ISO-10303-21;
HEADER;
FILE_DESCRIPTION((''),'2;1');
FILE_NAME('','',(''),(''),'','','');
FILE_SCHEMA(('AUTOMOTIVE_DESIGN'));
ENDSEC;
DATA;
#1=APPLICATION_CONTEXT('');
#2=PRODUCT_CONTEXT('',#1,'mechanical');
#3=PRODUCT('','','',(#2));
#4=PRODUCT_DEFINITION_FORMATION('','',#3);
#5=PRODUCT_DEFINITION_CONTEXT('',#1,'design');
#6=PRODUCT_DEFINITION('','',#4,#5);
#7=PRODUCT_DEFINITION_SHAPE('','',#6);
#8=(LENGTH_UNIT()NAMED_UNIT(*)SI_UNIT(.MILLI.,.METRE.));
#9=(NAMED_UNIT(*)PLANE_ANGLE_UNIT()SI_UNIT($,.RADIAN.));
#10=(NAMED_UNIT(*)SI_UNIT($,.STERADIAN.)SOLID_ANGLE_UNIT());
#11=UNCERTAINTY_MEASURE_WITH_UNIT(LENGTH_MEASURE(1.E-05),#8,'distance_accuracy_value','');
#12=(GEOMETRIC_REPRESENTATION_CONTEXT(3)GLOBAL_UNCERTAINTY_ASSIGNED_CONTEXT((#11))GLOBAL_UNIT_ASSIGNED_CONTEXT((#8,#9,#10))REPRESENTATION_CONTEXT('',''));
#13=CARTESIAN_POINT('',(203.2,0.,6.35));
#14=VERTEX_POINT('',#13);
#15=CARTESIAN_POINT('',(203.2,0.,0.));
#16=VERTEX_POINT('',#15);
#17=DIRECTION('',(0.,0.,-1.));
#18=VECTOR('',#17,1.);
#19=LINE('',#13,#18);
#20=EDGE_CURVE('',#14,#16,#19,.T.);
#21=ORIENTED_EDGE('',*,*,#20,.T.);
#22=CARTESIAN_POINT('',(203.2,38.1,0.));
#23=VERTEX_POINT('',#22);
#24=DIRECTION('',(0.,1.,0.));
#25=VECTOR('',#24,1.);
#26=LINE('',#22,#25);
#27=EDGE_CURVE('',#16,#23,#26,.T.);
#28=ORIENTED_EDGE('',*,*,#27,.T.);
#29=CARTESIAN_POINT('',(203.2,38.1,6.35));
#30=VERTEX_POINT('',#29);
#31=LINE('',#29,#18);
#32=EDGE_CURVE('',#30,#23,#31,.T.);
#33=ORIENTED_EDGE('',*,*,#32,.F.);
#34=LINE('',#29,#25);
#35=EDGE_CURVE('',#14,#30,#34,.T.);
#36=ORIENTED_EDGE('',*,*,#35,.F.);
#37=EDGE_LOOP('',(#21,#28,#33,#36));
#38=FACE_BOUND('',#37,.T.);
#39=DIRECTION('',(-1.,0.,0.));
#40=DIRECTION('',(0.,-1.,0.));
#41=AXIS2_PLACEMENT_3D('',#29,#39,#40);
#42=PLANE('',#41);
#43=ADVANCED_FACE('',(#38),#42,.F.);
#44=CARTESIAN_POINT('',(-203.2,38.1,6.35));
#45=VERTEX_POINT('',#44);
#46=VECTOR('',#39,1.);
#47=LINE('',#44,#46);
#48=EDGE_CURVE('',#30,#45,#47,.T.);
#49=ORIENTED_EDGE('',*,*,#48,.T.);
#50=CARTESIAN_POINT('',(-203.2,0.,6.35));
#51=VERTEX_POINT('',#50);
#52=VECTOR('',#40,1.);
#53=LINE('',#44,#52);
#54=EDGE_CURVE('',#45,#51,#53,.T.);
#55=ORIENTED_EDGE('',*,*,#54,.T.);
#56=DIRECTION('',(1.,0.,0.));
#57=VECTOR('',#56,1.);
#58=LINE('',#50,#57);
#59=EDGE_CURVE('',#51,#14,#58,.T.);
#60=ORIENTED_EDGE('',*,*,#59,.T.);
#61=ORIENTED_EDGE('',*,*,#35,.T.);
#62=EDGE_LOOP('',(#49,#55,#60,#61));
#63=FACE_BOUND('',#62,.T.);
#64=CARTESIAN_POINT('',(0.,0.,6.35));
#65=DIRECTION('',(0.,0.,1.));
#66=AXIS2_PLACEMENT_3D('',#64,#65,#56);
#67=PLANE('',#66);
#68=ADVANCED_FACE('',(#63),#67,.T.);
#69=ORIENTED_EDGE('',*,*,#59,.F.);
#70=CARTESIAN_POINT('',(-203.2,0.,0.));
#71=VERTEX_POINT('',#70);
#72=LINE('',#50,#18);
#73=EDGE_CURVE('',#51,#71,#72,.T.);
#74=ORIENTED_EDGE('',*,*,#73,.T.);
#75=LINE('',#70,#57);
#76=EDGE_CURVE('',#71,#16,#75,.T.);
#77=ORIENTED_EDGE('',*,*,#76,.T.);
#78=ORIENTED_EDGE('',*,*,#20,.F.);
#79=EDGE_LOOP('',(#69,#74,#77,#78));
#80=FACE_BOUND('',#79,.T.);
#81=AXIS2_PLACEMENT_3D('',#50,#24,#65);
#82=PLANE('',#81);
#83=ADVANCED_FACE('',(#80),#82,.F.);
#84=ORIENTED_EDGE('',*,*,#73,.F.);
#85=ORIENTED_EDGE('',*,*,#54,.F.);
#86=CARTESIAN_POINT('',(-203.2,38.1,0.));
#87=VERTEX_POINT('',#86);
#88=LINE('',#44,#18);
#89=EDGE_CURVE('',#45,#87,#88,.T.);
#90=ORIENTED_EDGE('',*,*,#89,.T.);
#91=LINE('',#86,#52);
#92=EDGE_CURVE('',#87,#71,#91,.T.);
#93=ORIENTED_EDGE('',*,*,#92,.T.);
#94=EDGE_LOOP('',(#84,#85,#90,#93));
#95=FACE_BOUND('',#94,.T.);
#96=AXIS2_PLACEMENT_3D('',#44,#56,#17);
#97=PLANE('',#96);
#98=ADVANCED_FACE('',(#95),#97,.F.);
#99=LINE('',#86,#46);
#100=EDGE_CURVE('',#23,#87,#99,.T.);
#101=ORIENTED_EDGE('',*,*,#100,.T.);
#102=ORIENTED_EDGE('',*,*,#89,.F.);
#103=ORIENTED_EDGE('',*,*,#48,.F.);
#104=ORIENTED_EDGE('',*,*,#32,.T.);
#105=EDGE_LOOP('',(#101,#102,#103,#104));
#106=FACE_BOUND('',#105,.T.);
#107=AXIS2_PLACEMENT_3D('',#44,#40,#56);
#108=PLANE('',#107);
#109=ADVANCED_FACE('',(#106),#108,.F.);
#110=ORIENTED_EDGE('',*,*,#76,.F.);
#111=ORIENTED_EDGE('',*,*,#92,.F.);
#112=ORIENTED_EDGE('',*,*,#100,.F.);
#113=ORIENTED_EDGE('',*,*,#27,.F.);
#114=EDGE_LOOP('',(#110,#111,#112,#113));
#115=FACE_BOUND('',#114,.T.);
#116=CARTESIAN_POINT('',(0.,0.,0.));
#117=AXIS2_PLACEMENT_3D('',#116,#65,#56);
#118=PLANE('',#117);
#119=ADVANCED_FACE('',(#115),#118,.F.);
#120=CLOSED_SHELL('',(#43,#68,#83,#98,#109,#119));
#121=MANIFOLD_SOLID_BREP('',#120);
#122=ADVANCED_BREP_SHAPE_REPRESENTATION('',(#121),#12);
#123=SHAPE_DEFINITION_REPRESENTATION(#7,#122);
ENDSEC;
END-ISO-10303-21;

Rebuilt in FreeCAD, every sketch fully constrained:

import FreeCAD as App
import Part
import Sketcher
from FreeCAD import Vector
Q = App.Units.Quantity


def add_polygon(sketch, points):
    """Adds a closed chain of lines whose ends are joined by coincident constraints."""
    first, n = sketch.GeometryCount, len(points)
    for a, b in zip(points, points[1:] + points[:1]):
        sketch.addGeometry(Part.LineSegment(App.Vector(*a, 0), App.Vector(*b, 0)), False)
    for i in range(n):
        sketch.addConstraint(Sketcher.Constraint("Coincident", first + i, 2, first + (i + 1) % n, 1))

doc = App.newDocument("Part")
body = doc.addObject("PartDesign::Body", "Body")

sketch1 = doc.addObject("Sketcher::SketchObject", "Sketch")
body.addObject(sketch1)
sketch1.AttachmentSupport = (doc.XY_Plane, [""])
sketch1.MapMode = "FlatFace"
add_polygon(sketch1, [(-203, 38), (-203, 0), (203, 0), (203, 38)])
sketch1.addConstraint([
    Sketcher.Constraint("Vertical", 0),
    Sketcher.Constraint("Horizontal", 1),
    Sketcher.Constraint("Vertical", 2),
    Sketcher.Constraint("Horizontal", 3),
    Sketcher.Constraint("Symmetric", 0, 2, 1, 2, -1, 1),
    Sketcher.Constraint("DistanceX", 1, 1, 1, 2, Q("16 in")),
    Sketcher.Constraint("DistanceY", 0, 2, 0, 1, Q("1.5 in")),
])
pad1 = doc.addObject("PartDesign::Pad", "Pad")
body.addObject(pad1)
pad1.Profile = sketch1
pad1.Length = Q("0.25 in")

doc.recompute()
